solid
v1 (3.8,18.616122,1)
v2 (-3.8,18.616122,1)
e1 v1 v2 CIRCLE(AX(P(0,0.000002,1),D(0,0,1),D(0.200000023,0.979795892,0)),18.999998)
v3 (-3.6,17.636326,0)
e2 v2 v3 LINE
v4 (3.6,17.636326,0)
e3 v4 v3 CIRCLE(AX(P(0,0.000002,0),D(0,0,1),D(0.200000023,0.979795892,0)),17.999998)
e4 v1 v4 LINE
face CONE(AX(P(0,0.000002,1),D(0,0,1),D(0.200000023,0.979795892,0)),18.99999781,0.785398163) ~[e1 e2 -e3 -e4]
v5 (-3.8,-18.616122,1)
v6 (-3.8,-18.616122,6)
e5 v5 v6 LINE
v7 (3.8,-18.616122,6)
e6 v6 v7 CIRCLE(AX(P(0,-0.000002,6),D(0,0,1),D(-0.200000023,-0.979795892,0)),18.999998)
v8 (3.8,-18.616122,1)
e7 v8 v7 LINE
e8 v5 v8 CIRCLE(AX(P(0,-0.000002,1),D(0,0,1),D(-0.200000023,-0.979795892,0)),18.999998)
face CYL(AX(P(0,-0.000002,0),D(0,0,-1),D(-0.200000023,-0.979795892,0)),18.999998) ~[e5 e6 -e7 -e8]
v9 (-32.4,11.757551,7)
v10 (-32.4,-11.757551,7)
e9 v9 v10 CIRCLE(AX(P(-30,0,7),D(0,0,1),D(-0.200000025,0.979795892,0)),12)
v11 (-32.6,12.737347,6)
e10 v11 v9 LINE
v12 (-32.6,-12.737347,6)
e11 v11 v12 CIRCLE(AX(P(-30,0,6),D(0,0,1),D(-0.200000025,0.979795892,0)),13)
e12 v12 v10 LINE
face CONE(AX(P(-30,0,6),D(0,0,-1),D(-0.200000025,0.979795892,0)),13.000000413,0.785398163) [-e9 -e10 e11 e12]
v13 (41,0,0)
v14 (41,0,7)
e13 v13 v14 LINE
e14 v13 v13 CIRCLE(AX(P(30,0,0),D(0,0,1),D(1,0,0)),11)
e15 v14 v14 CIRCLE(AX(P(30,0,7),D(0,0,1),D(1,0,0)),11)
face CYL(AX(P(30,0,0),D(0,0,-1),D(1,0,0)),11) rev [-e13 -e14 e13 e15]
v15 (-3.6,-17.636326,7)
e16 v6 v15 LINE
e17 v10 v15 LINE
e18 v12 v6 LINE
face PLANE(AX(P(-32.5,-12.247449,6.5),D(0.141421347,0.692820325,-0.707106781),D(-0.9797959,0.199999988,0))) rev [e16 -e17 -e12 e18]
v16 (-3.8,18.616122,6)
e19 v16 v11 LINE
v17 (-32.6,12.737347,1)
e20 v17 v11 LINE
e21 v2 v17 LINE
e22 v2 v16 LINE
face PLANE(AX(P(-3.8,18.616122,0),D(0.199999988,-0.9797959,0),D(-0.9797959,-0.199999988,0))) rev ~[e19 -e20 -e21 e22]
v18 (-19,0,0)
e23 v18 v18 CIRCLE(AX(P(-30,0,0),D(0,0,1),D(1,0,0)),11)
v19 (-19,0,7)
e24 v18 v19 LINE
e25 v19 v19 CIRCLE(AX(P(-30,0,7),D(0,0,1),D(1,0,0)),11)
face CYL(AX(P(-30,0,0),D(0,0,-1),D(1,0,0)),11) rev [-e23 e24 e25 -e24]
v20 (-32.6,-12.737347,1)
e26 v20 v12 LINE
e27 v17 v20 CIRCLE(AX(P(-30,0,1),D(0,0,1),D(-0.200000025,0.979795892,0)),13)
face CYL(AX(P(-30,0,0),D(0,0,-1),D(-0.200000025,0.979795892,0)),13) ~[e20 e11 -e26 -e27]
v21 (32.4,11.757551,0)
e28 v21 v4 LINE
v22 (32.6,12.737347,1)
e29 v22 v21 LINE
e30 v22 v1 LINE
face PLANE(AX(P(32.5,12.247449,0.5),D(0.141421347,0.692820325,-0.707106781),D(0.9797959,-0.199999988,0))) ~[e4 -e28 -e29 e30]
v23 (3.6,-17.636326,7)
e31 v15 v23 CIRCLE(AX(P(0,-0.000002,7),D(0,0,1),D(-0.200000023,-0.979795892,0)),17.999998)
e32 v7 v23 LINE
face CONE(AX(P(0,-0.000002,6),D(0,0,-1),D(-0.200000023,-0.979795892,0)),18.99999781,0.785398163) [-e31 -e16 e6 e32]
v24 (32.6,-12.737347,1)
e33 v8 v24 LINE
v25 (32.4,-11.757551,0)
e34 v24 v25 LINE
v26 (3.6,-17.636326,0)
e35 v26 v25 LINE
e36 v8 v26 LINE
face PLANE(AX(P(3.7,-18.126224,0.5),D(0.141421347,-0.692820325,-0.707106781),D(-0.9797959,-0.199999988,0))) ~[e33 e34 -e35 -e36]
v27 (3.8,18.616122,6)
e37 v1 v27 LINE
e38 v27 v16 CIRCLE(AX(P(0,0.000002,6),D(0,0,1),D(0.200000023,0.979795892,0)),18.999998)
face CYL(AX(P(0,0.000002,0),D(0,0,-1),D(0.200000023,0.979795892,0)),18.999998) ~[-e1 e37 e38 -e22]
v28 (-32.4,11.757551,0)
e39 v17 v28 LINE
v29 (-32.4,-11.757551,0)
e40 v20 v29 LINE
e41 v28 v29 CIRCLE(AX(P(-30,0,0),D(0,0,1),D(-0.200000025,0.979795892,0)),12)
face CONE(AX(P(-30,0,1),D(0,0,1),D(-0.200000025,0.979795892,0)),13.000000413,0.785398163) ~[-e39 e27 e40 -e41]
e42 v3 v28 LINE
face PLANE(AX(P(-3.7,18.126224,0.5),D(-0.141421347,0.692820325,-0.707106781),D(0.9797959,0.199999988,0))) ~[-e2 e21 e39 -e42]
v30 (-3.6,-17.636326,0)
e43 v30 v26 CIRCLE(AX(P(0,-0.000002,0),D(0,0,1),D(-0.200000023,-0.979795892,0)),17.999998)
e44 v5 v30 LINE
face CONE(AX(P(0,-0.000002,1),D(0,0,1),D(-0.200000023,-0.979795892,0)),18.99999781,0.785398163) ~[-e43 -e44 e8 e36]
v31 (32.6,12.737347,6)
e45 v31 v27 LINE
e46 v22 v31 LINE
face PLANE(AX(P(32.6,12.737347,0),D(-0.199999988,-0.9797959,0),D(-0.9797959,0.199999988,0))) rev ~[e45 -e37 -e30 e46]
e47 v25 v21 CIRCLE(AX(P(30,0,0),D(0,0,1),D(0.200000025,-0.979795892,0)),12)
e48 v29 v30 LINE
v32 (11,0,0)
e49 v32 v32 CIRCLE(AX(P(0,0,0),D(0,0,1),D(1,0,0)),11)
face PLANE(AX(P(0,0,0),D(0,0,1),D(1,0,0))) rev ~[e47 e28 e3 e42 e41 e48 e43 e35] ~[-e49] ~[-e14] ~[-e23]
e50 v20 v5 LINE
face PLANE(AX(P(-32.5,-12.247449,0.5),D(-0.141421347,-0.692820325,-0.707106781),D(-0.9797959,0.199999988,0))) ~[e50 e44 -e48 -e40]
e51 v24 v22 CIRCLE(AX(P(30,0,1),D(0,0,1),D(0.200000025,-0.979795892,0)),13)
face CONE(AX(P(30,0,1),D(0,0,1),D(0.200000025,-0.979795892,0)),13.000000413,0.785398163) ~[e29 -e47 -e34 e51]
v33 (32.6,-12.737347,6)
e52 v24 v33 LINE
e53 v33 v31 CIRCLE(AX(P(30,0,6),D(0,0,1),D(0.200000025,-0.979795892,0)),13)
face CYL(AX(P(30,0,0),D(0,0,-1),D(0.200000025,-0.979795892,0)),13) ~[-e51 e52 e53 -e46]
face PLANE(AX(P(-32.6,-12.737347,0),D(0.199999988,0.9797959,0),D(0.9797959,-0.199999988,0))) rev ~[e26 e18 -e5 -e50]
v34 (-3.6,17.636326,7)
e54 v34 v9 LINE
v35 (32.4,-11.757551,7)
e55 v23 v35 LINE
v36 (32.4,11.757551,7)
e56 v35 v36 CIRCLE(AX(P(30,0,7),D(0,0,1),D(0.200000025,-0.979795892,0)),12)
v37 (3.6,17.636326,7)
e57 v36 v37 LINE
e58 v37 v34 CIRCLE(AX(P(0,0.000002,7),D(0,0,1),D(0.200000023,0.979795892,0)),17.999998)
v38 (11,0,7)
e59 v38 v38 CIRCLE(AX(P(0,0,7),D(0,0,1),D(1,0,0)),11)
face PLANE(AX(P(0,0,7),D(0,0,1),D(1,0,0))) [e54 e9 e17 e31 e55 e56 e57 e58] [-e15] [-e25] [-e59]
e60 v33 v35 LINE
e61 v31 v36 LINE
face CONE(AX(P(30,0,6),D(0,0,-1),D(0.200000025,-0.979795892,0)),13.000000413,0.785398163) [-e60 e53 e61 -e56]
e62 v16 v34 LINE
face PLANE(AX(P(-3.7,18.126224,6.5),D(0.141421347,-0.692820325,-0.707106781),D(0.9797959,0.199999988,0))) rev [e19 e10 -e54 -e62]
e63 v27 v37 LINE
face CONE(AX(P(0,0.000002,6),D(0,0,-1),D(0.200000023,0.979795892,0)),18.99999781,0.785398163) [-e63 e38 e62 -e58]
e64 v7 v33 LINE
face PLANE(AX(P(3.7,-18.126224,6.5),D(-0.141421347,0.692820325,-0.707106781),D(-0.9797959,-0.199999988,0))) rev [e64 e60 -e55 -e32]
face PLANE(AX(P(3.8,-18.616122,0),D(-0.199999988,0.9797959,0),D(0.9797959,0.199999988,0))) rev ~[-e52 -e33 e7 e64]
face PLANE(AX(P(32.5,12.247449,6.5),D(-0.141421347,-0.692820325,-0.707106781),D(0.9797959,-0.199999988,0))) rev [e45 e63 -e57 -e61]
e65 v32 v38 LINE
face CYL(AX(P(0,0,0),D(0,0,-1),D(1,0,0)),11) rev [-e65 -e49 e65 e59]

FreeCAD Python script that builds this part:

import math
import FreeCAD as App
import Part
import Sketcher
Q = App.Units.Quantity


def edges_at(feature, points):
    """Names of the edges that pass closest to the given points."""
    edges = feature.Shape.Edges
    near = lambda p: min(range(len(edges)), key=lambda i: edges[i].distToShape(Part.Vertex(*p))[0])
    return sorted({f"Edge{near(p) + 1}" for p in points})

doc = App.newDocument("Part")
body = doc.addObject("PartDesign::Body", "Body")

# Sketch on XY plane
sketch1 = body.newObject("Sketcher::SketchObject", "Sketch")
sketch1.AttachmentSupport = (doc.getObject("XY_Plane"), [""])
sketch1.MapMode = "FlatFace"
sketch1.addGeometry([
    Part.LineSegment(App.Vector(3.8, -18.616122, 0), App.Vector(32.6, -12.737347, 0)),  # 0
    Part.ArcOfCircle(Part.Circle(App.Vector(30, 0, 0), App.Vector(0, 0, 1), 13), math.radians(-78.463039), math.radians(78.463039)),  # 1
    Part.LineSegment(App.Vector(32.6, 12.737347, 0), App.Vector(3.8, 18.616122, 0)),  # 2
    Part.ArcOfCircle(Part.Circle(App.Vector(0, 0.000002, 0), App.Vector(0, 0, 1), 18.999998), math.radians(78.46304), math.radians(101.53696)),  # 3
    Part.LineSegment(App.Vector(-3.8, 18.616122, 0), App.Vector(-32.6, 12.737347, 0)),  # 4
    Part.ArcOfCircle(Part.Circle(App.Vector(-30, 0, 0), App.Vector(0, 0, 1), 13), math.radians(101.536961), math.radians(258.463039)),  # 5
    Part.LineSegment(App.Vector(-32.6, -12.737347, 0), App.Vector(-3.8, -18.616122, 0)),  # 6
    Part.ArcOfCircle(Part.Circle(App.Vector(0, -0.000002, 0), App.Vector(0, 0, 1), 18.999998), math.radians(-101.53696), math.radians(-78.46304)),  # 7
    Part.Circle(App.Vector(-30, 0, 0), App.Vector(0, 0, 1), 11),  # 8
    Part.Circle(App.Vector(0, 0, 0), App.Vector(0, 0, 1), 11),  # 9
    Part.Circle(App.Vector(30, 0, 0), App.Vector(0, 0, 1), 11),  # 10
], False)
sketch1.addConstraint([
    Sketcher.Constraint("Tangent", 0, 2, 1, 1),
    Sketcher.Constraint("Tangent", 1, 2, 2, 1),
    Sketcher.Constraint("Tangent", 2, 2, 3, 1),
    Sketcher.Constraint("Tangent", 3, 2, 4, 1),
    Sketcher.Constraint("Tangent", 4, 2, 5, 1),
    Sketcher.Constraint("Tangent", 5, 2, 6, 1),
    Sketcher.Constraint("Tangent", 6, 2, 7, 1),
    Sketcher.Constraint("Tangent", 7, 2, 0, 1),
    Sketcher.Constraint("Coincident", 3, 3, -1, 1),
    Sketcher.Constraint("Coincident", 7, 3, -1, 1),
    Sketcher.Constraint("Coincident", 9, 3, -1, 1),
    Sketcher.Constraint("Coincident", 8, 3, 5, 3),
    Sketcher.Constraint("Coincident", 10, 3, 1, 3),
    Sketcher.Constraint("Equal", 1, 5),
    Sketcher.Constraint("Equal", 3, 7),
    Sketcher.Constraint("Equal", 8, 9),
    Sketcher.Constraint("Equal", 9, 10),
    Sketcher.Constraint("Symmetric", 1, 3, 5, 3, -1, 1),
    Sketcher.Constraint("PointOnObject", 1, 3, -1),
    Sketcher.Constraint("Diameter", 8, Q("22 mm")),
    Sketcher.Constraint("Radius", 1, Q("13 mm")),
    Sketcher.Constraint("DistanceX", -1, 1, 1, 3, Q("30 mm")),
    Sketcher.Constraint("DistanceX", -1, 1, 0, 2, Q("32.6 mm")),
])
pad1 = body.newObject("PartDesign::Pad", "Pad")
pad1.Profile = sketch1
pad1.Length = 7
doc.recompute()

chamfer = body.newObject("PartDesign::Chamfer", "Chamfer")
chamfer.Base = (pad1, edges_at(pad1, [(43, 0, 7), (43, 0, 0)]))
chamfer.Size = 1

doc.recompute()
